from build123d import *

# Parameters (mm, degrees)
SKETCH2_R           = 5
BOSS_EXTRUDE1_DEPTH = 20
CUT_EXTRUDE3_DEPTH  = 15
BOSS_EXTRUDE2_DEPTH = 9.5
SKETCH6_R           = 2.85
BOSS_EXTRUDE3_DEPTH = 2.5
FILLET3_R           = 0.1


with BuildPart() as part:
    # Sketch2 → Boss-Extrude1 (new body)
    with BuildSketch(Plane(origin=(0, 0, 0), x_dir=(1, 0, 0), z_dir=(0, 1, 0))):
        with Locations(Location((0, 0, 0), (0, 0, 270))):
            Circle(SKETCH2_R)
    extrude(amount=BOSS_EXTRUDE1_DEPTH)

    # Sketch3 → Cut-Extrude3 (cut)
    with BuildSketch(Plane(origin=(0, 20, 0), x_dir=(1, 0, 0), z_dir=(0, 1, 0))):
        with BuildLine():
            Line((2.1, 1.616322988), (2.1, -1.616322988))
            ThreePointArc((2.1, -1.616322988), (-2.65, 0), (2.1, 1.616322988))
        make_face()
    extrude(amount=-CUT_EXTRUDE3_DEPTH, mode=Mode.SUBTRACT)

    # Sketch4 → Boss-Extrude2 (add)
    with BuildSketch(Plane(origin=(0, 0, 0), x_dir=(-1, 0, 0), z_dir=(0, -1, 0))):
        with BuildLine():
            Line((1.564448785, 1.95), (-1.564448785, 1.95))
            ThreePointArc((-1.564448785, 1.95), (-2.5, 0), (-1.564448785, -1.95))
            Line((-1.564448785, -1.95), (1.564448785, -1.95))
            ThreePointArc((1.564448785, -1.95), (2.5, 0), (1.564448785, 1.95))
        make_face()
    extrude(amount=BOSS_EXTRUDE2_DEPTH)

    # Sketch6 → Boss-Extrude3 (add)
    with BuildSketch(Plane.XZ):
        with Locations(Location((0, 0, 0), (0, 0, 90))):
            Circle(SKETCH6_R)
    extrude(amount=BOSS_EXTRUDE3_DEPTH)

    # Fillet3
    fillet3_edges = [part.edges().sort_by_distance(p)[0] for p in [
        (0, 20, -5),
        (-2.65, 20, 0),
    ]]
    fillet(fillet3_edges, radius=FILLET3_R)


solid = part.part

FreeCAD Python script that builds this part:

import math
import FreeCAD as App
import Part
import Sketcher
from FreeCAD import Vector


def edges_at(feature, points):
    """Names of the edges that pass closest to the given points."""
    edges = feature.Shape.Edges
    near = lambda p: min(range(len(edges)), key=lambda i: edges[i].distToShape(Part.Vertex(*p))[0])
    return sorted({f"Edge{near(p) + 1}" for p in points})

doc = App.newDocument("Part")
body = doc.addObject("PartDesign::Body", "Body")

# Sketch on XZ plane
sketch1 = body.newObject("Sketcher::SketchObject", "Sketch")
sketch1.AttachmentSupport = (doc.getObject("XZ_Plane"), [""])
sketch1.MapMode = "FlatFace"
sketch1.addGeometry(Part.Circle(Vector(0, 0, 0), Vector(0, 0, 1), 5), False)
sketch1.addConstraint(Sketcher.Constraint("Coincident", 0, 3, -1, 1))
sketch1.addConstraint(Sketcher.Constraint("Diameter", 0, 10.0))
pad1 = body.newObject("PartDesign::Pad", "Pad")
pad1.Profile = sketch1
pad1.Length = 20
pad1.Reversed = True

# Sketch on XZ plane
sketch2 = body.newObject("Sketcher::SketchObject", "Sketch001")
sketch2.AttachmentSupport = (doc.getObject("XZ_Plane"), [""])
sketch2.MapMode = "FlatFace"
sketch2.AttachmentOffset = App.Placement(Vector(0, 0, -20), App.Rotation())
sketch2.addGeometry(Part.LineSegment(Vector(2.1, 1.6, 0), Vector(2.1, -1.6, 0)), False)
sketch2.addGeometry(Part.ArcOfCircle(Part.Circle(Vector(0, 0, 0), Vector(0, 0, 1), 2.6), math.radians(38), math.radians(322)), False)
sketch2.addConstraint(Sketcher.Constraint("Coincident", 0, 1, 1, 1))
sketch2.addConstraint(Sketcher.Constraint("Coincident", 1, 2, 0, 2))
sketch2.addConstraint(Sketcher.Constraint("Vertical", 0))
sketch2.addConstraint(Sketcher.Constraint("Coincident", 1, 3, -1, 1))
sketch2.addConstraint(Sketcher.Constraint("Radius", 1, 2.65))
sketch2.addConstraint(Sketcher.Constraint("DistanceX", -1, 1, 0, 1, 2.1))
pocket1 = body.newObject("PartDesign::Pocket", "Pocket")
pocket1.Profile = sketch2
pocket1.Length = 15
pocket1.Reversed = True

# Sketch on XZ plane
sketch3 = body.newObject("Sketcher::SketchObject", "Sketch002")
sketch3.AttachmentSupport = (doc.getObject("XZ_Plane"), [""])
sketch3.MapMode = "FlatFace"
sketch3.addGeometry(Part.LineSegment(Vector(-1.6, -1.9, 0), Vector(1.6, -1.9, 0)), False)
sketch3.addGeometry(Part.ArcOfCircle(Part.Circle(Vector(0, 0, 0), Vector(0, 0, 1), 2.5), math.radians(-51), math.radians(51)), False)
sketch3.addGeometry(Part.LineSegment(Vector(1.6, 1.9, 0), Vector(-1.6, 1.9, 0)), False)
sketch3.addGeometry(Part.ArcOfCircle(Part.Circle(Vector(0, 0, 0), Vector(0, 0, 1), 2.5), math.radians(129), math.radians(231)), False)
sketch3.addConstraint(Sketcher.Constraint("Coincident", 0, 2, 1, 1))
sketch3.addConstraint(Sketcher.Constraint("Coincident", 1, 2, 2, 1))
sketch3.addConstraint(Sketcher.Constraint("Coincident", 2, 2, 3, 1))
sketch3.addConstraint(Sketcher.Constraint("Coincident", 3, 2, 0, 1))
sketch3.addConstraint(Sketcher.Constraint("Horizontal", 0))
sketch3.addConstraint(Sketcher.Constraint("Horizontal", 2))
sketch3.addConstraint(Sketcher.Constraint("Coincident", 1, 3, -1, 1))
sketch3.addConstraint(Sketcher.Constraint("Coincident", 3, 3, -1, 1))
sketch3.addConstraint(Sketcher.Constraint("Equal", 1, 3))
sketch3.addConstraint(Sketcher.Constraint("Vertical", 0, 2, 1, 2))
sketch3.addConstraint(Sketcher.Constraint("Radius", 1, 2.5))
sketch3.addConstraint(Sketcher.Constraint("DistanceY", 0, 2, 1, 2, 3.9))
pad2 = body.newObject("PartDesign::Pad", "Pad001")
pad2.Profile = sketch3
pad2.Length = 9.5

# Sketch on XZ plane
sketch4 = body.newObject("Sketcher::SketchObject", "Sketch003")
sketch4.AttachmentSupport = (doc.getObject("XZ_Plane"), [""])
sketch4.MapMode = "FlatFace"
sketch4.addGeometry(Part.Circle(Vector(0, 0, 0), Vector(0, 0, 1), 2.9), False)
sketch4.addConstraint(Sketcher.Constraint("Coincident", 0, 3, -1, 1))
sketch4.addConstraint(Sketcher.Constraint("Diameter", 0, 5.7))
pad3 = body.newObject("PartDesign::Pad", "Pad002")
pad3.Profile = sketch4
pad3.Length = 2.5
doc.recompute()

fillet = body.newObject("PartDesign::Fillet", "Fillet")
fillet.Base = (pad3, edges_at(pad3, [(0, 20, -5), (-2.65, 20, 0)]))
fillet.Radius = 0.1

doc.recompute()
